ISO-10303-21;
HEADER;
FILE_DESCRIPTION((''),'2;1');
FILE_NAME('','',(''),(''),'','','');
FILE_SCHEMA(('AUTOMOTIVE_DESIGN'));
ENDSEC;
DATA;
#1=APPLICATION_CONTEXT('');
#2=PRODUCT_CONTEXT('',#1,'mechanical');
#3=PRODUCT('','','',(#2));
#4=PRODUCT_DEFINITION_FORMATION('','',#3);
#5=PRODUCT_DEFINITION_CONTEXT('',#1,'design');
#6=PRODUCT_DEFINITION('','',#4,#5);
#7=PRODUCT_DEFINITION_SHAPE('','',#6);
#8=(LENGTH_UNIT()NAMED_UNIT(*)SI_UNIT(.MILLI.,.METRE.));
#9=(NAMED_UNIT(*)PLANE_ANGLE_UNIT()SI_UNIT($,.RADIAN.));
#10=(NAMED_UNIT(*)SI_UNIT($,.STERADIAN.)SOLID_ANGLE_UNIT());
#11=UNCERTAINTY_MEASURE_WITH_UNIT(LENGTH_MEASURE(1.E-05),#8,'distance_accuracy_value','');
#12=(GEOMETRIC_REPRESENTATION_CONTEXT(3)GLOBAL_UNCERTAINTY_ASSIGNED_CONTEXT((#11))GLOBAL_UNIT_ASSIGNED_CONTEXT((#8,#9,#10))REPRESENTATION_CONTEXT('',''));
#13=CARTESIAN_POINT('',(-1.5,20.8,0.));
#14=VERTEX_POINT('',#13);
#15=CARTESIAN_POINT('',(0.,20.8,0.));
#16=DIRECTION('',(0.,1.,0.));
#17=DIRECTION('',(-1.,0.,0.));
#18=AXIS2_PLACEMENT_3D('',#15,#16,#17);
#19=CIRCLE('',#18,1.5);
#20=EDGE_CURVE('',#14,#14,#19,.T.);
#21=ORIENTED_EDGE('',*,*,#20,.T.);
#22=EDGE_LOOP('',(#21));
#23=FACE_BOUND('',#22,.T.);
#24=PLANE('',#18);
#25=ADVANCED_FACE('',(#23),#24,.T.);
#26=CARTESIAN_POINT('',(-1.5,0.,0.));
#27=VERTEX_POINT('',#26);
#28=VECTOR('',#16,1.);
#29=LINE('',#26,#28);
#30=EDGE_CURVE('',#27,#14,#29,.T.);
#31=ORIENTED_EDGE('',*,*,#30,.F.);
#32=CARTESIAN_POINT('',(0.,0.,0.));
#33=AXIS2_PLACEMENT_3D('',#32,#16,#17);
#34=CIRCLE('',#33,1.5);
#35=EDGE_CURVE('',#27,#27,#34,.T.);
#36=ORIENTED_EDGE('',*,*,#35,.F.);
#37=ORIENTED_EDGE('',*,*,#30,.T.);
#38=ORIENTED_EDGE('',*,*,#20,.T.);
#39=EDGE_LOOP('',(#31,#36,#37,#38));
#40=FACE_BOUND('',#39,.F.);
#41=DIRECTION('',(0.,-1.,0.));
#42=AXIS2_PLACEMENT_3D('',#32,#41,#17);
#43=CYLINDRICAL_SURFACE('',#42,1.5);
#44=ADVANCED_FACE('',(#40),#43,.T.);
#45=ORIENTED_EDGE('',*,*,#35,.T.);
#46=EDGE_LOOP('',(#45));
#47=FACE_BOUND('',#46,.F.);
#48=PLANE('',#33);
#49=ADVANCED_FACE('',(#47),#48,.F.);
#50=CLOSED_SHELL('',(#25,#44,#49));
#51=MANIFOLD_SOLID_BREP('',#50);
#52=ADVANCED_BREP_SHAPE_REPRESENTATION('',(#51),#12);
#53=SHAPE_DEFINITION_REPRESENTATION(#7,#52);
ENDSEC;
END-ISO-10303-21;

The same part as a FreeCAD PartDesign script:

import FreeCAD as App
import Part
import Sketcher
Q = App.Units.Quantity

doc = App.newDocument("Part")
params = doc.addObject("Spreadsheet::Sheet", "Params")
for row, (alias, value) in enumerate([
    ("sketch1_diameter", "3 mm"),
    ("pad1_length", "20.8 mm"),
], start=1):
    params.set(f"A{row}", alias)
    params.set(f"B{row}", "=" + value)
    params.setAlias(f"B{row}", alias)

body = doc.addObject("PartDesign::Body", "Body")

# Sketch on XZ plane
sketch1 = body.newObject("Sketcher::SketchObject", "Sketch")
sketch1.AttachmentSupport = (doc.getObject("XZ_Plane"), [""])
sketch1.MapMode = "FlatFace"
sketch1.addGeometry(Part.Circle(App.Vector(0, 0, 0), App.Vector(0, 0, 1), 1.5), False)
sketch1.addConstraint([
    Sketcher.Constraint("Coincident", 0, 3, -1, 1),
    Sketcher.Constraint("Diameter", 0, Q("3 mm")),
])
sketch1.setExpression("Constraints[1]", "Params.sketch1_diameter")
pad1 = body.newObject("PartDesign::Pad", "Pad")
pad1.Profile = sketch1
pad1.setExpression("Length", "Params.pad1_length")
pad1.Reversed = True

doc.recompute()
